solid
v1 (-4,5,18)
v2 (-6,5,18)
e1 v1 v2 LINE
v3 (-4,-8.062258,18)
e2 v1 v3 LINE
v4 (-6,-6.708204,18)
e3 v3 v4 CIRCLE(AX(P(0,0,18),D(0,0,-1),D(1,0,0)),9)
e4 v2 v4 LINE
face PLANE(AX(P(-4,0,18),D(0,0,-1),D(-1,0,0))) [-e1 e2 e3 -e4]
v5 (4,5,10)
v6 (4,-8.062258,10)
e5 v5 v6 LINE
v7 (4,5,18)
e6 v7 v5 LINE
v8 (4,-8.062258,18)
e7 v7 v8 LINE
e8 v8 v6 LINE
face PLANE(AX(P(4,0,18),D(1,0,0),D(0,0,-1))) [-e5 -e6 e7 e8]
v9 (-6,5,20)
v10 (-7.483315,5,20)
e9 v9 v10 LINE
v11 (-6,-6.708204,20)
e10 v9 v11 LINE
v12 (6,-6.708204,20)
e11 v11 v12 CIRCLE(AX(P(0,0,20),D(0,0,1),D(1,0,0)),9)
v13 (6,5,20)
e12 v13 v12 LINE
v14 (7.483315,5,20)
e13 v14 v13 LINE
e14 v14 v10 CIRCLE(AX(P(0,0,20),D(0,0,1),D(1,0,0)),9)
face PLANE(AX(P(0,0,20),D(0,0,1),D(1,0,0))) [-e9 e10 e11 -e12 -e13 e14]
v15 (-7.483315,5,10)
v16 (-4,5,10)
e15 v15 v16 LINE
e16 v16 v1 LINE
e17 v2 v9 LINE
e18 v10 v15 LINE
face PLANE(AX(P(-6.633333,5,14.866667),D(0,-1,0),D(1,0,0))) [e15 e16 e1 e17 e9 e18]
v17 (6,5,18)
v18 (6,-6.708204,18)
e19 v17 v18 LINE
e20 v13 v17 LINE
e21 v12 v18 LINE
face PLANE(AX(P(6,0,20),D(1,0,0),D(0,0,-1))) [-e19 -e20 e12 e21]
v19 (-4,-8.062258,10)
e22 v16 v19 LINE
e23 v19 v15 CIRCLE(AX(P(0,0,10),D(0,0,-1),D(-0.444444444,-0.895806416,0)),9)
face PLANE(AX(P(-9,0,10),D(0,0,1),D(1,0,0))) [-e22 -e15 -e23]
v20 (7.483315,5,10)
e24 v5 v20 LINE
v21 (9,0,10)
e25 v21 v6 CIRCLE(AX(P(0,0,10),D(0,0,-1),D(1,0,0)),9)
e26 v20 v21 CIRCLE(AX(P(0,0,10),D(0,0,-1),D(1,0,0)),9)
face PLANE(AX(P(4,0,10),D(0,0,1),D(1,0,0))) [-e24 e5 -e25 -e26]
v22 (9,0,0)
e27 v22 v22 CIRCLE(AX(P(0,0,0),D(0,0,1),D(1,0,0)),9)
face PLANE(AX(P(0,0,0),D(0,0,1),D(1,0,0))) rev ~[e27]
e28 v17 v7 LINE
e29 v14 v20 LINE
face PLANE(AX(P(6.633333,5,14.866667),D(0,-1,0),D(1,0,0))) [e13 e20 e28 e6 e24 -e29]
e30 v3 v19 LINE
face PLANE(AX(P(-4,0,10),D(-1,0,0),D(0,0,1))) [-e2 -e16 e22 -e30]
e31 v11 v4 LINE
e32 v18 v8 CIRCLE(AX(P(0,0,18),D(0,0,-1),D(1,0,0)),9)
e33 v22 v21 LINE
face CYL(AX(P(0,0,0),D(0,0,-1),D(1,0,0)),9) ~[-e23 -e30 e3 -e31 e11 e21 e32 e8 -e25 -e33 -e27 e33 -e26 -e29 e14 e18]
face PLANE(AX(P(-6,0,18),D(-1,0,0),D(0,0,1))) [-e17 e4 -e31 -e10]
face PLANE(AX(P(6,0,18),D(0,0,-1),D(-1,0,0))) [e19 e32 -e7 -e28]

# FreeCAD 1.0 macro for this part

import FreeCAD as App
import Part
import Sketcher
from FreeCAD import Vector
Q = App.Units.Quantity


def add_polygon(sketch, points):
    """Adds a closed chain of lines whose ends are joined by coincident constraints."""
    first, n = sketch.GeometryCount, len(points)
    for a, b in zip(points, points[1:] + points[:1]):
        sketch.addGeometry(Part.LineSegment(App.Vector(*a, 0), App.Vector(*b, 0)), False)
    for i in range(n):
        sketch.addConstraint(Sketcher.Constraint("Coincident", first + i, 2, first + (i + 1) % n, 1))

doc = App.newDocument("Part")
body = doc.addObject("PartDesign::Body", "Body")

# Sketch on XY plane
sketch1 = doc.addObject("Sketcher::SketchObject", "Sketch")
body.addObject(sketch1)
sketch1.AttachmentSupport = (doc.XY_Plane, [""])
sketch1.MapMode = "FlatFace"
sketch1.addGeometry(Part.Circle(Vector(0, 0, 0), Vector(0, 0, 1), 9), False)
sketch1.addConstraint(Sketcher.Constraint("Coincident", 0, 3, -1, 1))
sketch1.addConstraint(Sketcher.Constraint("Diameter", 0, Q("18 mm")))
pad1 = doc.addObject("PartDesign::Pad", "Pad")
body.addObject(pad1)
pad1.Profile = sketch1
pad1.Length = 20

# Sketch on XZ plane
sketch2 = doc.addObject("Sketcher::SketchObject", "Sketch001")
body.addObject(sketch2)
sketch2.AttachmentSupport = (doc.XZ_Plane, [""])
sketch2.MapMode = "FlatFace"
add_polygon(sketch2, [(6, 18), (4, 18), (4, 10), (9, 10), (9, 20), (6, 20)])  # lines 0-5
add_polygon(sketch2, [(-6, 18), (-6, 20), (-9, 20), (-9, 10), (-4, 10), (-4, 18)])  # lines 6-11
sketch2.addConstraint(Sketcher.Constraint("Horizontal", 0))
sketch2.addConstraint(Sketcher.Constraint("Vertical", 1))
sketch2.addConstraint(Sketcher.Constraint("Horizontal", 2))
sketch2.addConstraint(Sketcher.Constraint("Vertical", 3))
sketch2.addConstraint(Sketcher.Constraint("Horizontal", 4))
sketch2.addConstraint(Sketcher.Constraint("Vertical", 5))
sketch2.addConstraint(Sketcher.Constraint("Vertical", 6))
sketch2.addConstraint(Sketcher.Constraint("Horizontal", 7))
sketch2.addConstraint(Sketcher.Constraint("Vertical", 8))
sketch2.addConstraint(Sketcher.Constraint("Horizontal", 9))
sketch2.addConstraint(Sketcher.Constraint("Vertical", 10))
sketch2.addConstraint(Sketcher.Constraint("Horizontal", 11))
sketch2.addConstraint(Sketcher.Constraint("Symmetric", 4, 2, 6, 2, -2))
sketch2.addConstraint(Sketcher.Constraint("Symmetric", 2, 2, 8, 2, -2))
sketch2.addConstraint(Sketcher.Constraint("Symmetric", 0, 2, 10, 2, -2))
sketch2.addConstraint(Sketcher.Constraint("Equal", 11, 5))
sketch2.addConstraint(Sketcher.Constraint("DistanceX", 0, 2, 0, 1, Q("2 mm")))
sketch2.addConstraint(Sketcher.Constraint("DistanceX", 2, 1, 2, 2, Q("5 mm")))
sketch2.addConstraint(Sketcher.Constraint("DistanceY", 1, 2, 1, 1, Q("8 mm")))
sketch2.addConstraint(Sketcher.Constraint("DistanceX", -1, 1, 0, 2, Q("4 mm")))
sketch2.addConstraint(Sketcher.Constraint("DistanceY", -1, 1, 0, 2, Q("18 mm")))
pocket1 = doc.addObject("PartDesign::Pocket", "Pocket")
body.addObject(pocket1)
pocket1.Profile = sketch2
pocket1.Type = "TwoLengths"
pocket1.Length = 5
pocket1.Length2 = 25

doc.recompute()
